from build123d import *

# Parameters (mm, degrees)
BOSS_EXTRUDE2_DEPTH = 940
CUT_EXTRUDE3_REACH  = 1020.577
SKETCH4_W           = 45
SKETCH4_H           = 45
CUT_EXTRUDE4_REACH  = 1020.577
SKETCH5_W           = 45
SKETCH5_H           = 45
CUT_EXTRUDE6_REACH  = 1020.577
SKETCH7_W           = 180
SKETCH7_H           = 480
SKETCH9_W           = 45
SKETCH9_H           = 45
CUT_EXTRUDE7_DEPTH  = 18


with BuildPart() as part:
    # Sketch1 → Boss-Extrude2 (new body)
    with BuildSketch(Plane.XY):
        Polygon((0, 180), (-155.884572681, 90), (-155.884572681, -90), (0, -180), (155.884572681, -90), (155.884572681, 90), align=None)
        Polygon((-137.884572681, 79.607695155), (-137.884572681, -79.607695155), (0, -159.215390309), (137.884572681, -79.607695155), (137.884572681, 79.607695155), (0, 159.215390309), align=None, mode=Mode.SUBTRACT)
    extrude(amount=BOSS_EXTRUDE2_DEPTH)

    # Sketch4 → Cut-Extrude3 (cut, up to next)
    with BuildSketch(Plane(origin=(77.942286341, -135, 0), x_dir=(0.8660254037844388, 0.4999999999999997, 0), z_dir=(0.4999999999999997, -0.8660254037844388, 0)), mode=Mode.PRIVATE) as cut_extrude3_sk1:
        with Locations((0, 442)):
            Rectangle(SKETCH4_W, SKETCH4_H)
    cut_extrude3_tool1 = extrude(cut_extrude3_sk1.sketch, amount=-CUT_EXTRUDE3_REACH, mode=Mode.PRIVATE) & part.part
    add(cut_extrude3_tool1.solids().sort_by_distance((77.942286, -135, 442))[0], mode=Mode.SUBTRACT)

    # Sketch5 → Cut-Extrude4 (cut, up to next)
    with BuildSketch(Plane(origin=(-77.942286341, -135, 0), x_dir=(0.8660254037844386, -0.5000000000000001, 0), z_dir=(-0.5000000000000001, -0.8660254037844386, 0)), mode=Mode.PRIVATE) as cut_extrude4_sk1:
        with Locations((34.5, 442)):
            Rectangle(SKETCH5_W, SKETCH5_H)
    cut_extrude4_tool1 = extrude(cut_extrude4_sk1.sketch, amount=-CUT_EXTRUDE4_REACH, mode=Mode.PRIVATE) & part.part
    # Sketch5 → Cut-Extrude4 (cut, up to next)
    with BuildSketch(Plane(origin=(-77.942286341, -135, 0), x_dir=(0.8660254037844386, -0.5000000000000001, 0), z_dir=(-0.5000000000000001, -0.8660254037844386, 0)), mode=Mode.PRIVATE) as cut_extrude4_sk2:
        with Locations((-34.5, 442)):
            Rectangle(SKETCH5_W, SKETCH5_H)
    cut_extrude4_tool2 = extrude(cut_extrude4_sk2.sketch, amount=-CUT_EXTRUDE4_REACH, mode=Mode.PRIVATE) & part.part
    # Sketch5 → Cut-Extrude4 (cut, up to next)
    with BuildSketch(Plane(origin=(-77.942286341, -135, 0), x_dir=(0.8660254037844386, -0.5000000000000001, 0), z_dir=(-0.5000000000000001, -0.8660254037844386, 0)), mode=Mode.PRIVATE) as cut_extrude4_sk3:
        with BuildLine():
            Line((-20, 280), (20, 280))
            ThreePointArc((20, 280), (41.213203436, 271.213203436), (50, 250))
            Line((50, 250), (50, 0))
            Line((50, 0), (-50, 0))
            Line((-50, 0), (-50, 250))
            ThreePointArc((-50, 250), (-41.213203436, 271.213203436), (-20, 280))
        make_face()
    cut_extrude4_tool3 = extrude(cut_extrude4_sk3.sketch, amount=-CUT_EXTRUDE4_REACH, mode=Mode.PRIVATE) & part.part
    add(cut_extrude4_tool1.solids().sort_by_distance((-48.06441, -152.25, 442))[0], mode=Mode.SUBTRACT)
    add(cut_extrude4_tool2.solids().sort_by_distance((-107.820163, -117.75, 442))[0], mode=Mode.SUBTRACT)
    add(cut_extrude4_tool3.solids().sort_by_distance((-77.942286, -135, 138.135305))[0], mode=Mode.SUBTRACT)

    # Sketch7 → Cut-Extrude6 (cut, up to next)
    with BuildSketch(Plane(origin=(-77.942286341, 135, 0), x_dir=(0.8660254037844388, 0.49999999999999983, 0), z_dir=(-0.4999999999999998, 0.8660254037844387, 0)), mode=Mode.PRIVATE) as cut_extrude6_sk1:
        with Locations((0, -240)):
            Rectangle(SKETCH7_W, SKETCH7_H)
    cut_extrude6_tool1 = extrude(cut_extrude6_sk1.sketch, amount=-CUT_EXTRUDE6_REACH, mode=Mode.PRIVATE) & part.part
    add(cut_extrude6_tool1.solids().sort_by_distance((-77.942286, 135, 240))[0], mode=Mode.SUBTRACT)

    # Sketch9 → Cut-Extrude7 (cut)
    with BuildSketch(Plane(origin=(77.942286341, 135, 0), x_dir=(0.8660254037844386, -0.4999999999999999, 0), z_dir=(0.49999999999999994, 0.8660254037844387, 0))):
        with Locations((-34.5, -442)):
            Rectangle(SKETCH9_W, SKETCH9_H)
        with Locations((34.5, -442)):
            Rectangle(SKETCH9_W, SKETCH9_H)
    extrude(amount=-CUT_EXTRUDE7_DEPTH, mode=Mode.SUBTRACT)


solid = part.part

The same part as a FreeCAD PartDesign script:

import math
import FreeCAD as App
import Part
import Sketcher

V = App.Vector
Q = App.Units.Quantity

doc = App.newDocument("Part")
params = doc.addObject("Spreadsheet::Sheet", "Params")
for row, (alias, value) in enumerate([
    ("sketch1_height", "180 mm"),
    ("sketch1_length", "180 mm"),
    ("pad1_length", "940 mm"),
    ("sketch2_width", "45 mm"),
    ("sketch3_width", "45 mm"),
    ("sketch4_width", "45 mm"),
    ("sketch5_radius", "30 mm"),
    ("sketch5_width", "40 mm"),
    ("sketch5_height", "250 mm"),
    ("sketch6_width", "180 mm"),
    ("sketch6_height", "480 mm"),
    ("pocket5_length", "36 mm"),
    ("sketch7_width", "45 mm"),
    ("pocket6_length", "18 mm"),
], start=1):
    params.set(f"A{row}", alias)
    params.set(f"B{row}", "=" + value)
    params.setAlias(f"B{row}", alias)

body = doc.addObject("PartDesign::Body", "Body")

# Sketch on XY plane
sketch1 = doc.addObject("Sketcher::SketchObject", "Sketch")
body.addObject(sketch1)
sketch1.AttachmentSupport = (doc.XY_Plane, [""])
sketch1.MapMode = "FlatFace"
sketch1.addGeometry(Part.LineSegment(V(0, 180, 0), V(-155.884573, 90, 0)), False)
sketch1.addGeometry(Part.LineSegment(V(-155.884573, 90, 0), V(-155.884573, -90, 0)), False)
sketch1.addGeometry(Part.LineSegment(V(-155.884573, -90, 0), V(0, -180, 0)), False)
sketch1.addGeometry(Part.LineSegment(V(0, -180, 0), V(155.884573, -90, 0)), False)
sketch1.addGeometry(Part.LineSegment(V(155.884573, -90, 0), V(155.884573, 90, 0)), False)
sketch1.addGeometry(Part.LineSegment(V(155.884573, 90, 0), V(0, 180, 0)), False)
sketch1.addGeometry(Part.LineSegment(V(-137.884573, -79.607695, 0), V(-137.884573, 79.607695, 0)), False)
sketch1.addGeometry(Part.LineSegment(V(-137.884573, 79.607695, 0), V(0, 159.21539, 0)), False)
sketch1.addGeometry(Part.LineSegment(V(0, 159.21539, 0), V(137.884573, 79.607695, 0)), False)
sketch1.addGeometry(Part.LineSegment(V(137.884573, 79.607695, 0), V(137.884573, -79.607695, 0)), False)
sketch1.addGeometry(Part.LineSegment(V(137.884573, -79.607695, 0), V(0, -159.21539, 0)), False)
sketch1.addGeometry(Part.LineSegment(V(0, -159.21539, 0), V(-137.884573, -79.607695, 0)), False)
sketch1.addConstraint(Sketcher.Constraint("Coincident", 0, 2, 1, 1))
sketch1.addConstraint(Sketcher.Constraint("Coincident", 1, 2, 2, 1))
sketch1.addConstraint(Sketcher.Constraint("Coincident", 2, 2, 3, 1))
sketch1.addConstraint(Sketcher.Constraint("Coincident", 3, 2, 4, 1))
sketch1.addConstraint(Sketcher.Constraint("Coincident", 4, 2, 5, 1))
sketch1.addConstraint(Sketcher.Constraint("Coincident", 5, 2, 0, 1))
sketch1.addConstraint(Sketcher.Constraint("Coincident", 6, 2, 7, 1))
sketch1.addConstraint(Sketcher.Constraint("Coincident", 7, 2, 8, 1))
sketch1.addConstraint(Sketcher.Constraint("Coincident", 8, 2, 9, 1))
sketch1.addConstraint(Sketcher.Constraint("Coincident", 9, 2, 10, 1))
sketch1.addConstraint(Sketcher.Constraint("Coincident", 10, 2, 11, 1))
sketch1.addConstraint(Sketcher.Constraint("Coincident", 11, 2, 6, 1))
sketch1.addConstraint(Sketcher.Constraint("Vertical", 1))
sketch1.addConstraint(Sketcher.Constraint("Vertical", 4))
sketch1.addConstraint(Sketcher.Constraint("Vertical", 6))
sketch1.addConstraint(Sketcher.Constraint("Vertical", 9))
sketch1.addConstraint(Sketcher.Constraint("Symmetric", 0, 2, 3, 2, -1, 1))
sketch1.addConstraint(Sketcher.Constraint("Symmetric", 2, 2, 5, 2, -1, 1))
sketch1.addConstraint(Sketcher.Constraint("Symmetric", 6, 2, 9, 2, -1, 1))
sketch1.addConstraint(Sketcher.Constraint("Symmetric", 7, 2, 10, 2, -1, 1))
sketch1.addConstraint(Sketcher.Constraint("PointOnObject", 2, 2, -2))
sketch1.addConstraint(Sketcher.Constraint("PointOnObject", 7, 2, -2))
sketch1.addConstraint(Sketcher.Constraint("Parallel", 2, 5))
sketch1.addConstraint(Sketcher.Constraint("Parallel", 3, 7))
sketch1.addConstraint(Sketcher.Constraint("Parallel", 5, 8))
sketch1.addConstraint(Sketcher.Constraint("Parallel", 8, 11))
sketch1.addConstraint(Sketcher.Constraint("Horizontal", 1, 2, 3, 2))
sketch1.addConstraint(Sketcher.Constraint("DistanceY", 1, 2, 1, 1, 180.0))
sketch1.addConstraint(Sketcher.Constraint("Angle", 0, Q("-150 deg")))
sketch1.addConstraint(Sketcher.Constraint("Distance", 0, 180.0))
sketch1.addConstraint(Sketcher.Constraint("DistanceX", 0, 2, 6, 2, 18.0))
sketch1.addConstraint(Sketcher.Constraint("DistanceY", 6, 1, 6, 2, 159.21539))
sketch1.setExpression("Constraints[27]", "Params.sketch1_height")
sketch1.setExpression("Constraints[29]", "Params.sketch1_length")
pad1 = doc.addObject("PartDesign::Pad", "Pad")
body.addObject(pad1)
pad1.Profile = sketch1
pad1.setExpression("Length", "Params.pad1_length")

# Sketch on an angled plane
sketch2 = doc.addObject("Sketcher::SketchObject", "Sketch001")
body.addObject(sketch2)
sketch2.Placement = App.Placement(V(77.942286, -135, 0), App.Rotation(V(0.866025404, 0.5, 0), V(0, 0, 1), V(0.5, -0.866025404, 0), "ZXY"))
sketch2.addGeometry(Part.LineSegment(V(-22.5, 464.5, 0), V(-22.5, 419.5, 0)), False)
sketch2.addGeometry(Part.LineSegment(V(-22.5, 419.5, 0), V(22.5, 419.5, 0)), False)
sketch2.addGeometry(Part.LineSegment(V(22.5, 419.5, 0), V(22.5, 464.5, 0)), False)
sketch2.addGeometry(Part.LineSegment(V(22.5, 464.5, 0), V(-22.5, 464.5, 0)), False)
sketch2.addConstraint(Sketcher.Constraint("Coincident", 0, 2, 1, 1))
sketch2.addConstraint(Sketcher.Constraint("Coincident", 1, 2, 2, 1))
sketch2.addConstraint(Sketcher.Constraint("Coincident", 2, 2, 3, 1))
sketch2.addConstraint(Sketcher.Constraint("Coincident", 3, 2, 0, 1))
sketch2.addConstraint(Sketcher.Constraint("Vertical", 0))
sketch2.addConstraint(Sketcher.Constraint("Horizontal", 1))
sketch2.addConstraint(Sketcher.Constraint("Vertical", 2))
sketch2.addConstraint(Sketcher.Constraint("Horizontal", 3))
sketch2.addConstraint(Sketcher.Constraint("Equal", 3, 0))
sketch2.addConstraint(Sketcher.Constraint("DistanceX", 1, 1, 1, 2, 45.0))
sketch2.addConstraint(Sketcher.Constraint("DistanceX", 0, 2, -1, 1, 22.5))
sketch2.addConstraint(Sketcher.Constraint("DistanceY", -1, 1, 0, 2, 419.5))
sketch2.setExpression("Constraints[9]", "Params.sketch2_width")
pocket1 = doc.addObject("PartDesign::Pocket", "Pocket")
body.addObject(pocket1)
pocket1.Profile = sketch2
pocket1.Type = "UpToFirst"

# Sketch on an angled plane
sketch3 = doc.addObject("Sketcher::SketchObject", "Sketch002")
body.addObject(sketch3)
sketch3.Placement = App.Placement(V(-77.942286, -135, 0), App.Rotation(V(0.866025404, -0.5, 0), V(0, 0, 1), V(-0.5, -0.866025404, 0), "ZXY"))
sketch3.addGeometry(Part.LineSegment(V(12, 464.5, 0), V(12, 419.5, 0)), False)
sketch3.addGeometry(Part.LineSegment(V(12, 419.5, 0), V(57, 419.5, 0)), False)
sketch3.addGeometry(Part.LineSegment(V(57, 419.5, 0), V(57, 464.5, 0)), False)
sketch3.addGeometry(Part.LineSegment(V(57, 464.5, 0), V(12, 464.5, 0)), False)
sketch3.addConstraint(Sketcher.Constraint("Coincident", 0, 2, 1, 1))
sketch3.addConstraint(Sketcher.Constraint("Coincident", 1, 2, 2, 1))
sketch3.addConstraint(Sketcher.Constraint("Coincident", 2, 2, 3, 1))
sketch3.addConstraint(Sketcher.Constraint("Coincident", 3, 2, 0, 1))
sketch3.addConstraint(Sketcher.Constraint("Vertical", 0))
sketch3.addConstraint(Sketcher.Constraint("Horizontal", 1))
sketch3.addConstraint(Sketcher.Constraint("Vertical", 2))
sketch3.addConstraint(Sketcher.Constraint("Horizontal", 3))
sketch3.addConstraint(Sketcher.Constraint("Equal", 3, 0))
sketch3.addConstraint(Sketcher.Constraint("DistanceX", 1, 1, 1, 2, 45.0))
sketch3.addConstraint(Sketcher.Constraint("DistanceX", -1, 1, 0, 2, 12.0))
sketch3.addConstraint(Sketcher.Constraint("DistanceY", -1, 1, 0, 2, 419.5))
sketch3.setExpression("Constraints[9]", "Params.sketch3_width")
pocket2 = doc.addObject("PartDesign::Pocket", "Pocket001")
body.addObject(pocket2)
pocket2.Profile = sketch3
pocket2.Type = "UpToFirst"

# Sketch on an angled plane
sketch4 = doc.addObject("Sketcher::SketchObject", "Sketch003")
body.addObject(sketch4)
sketch4.Placement = App.Placement(V(-77.942286, -135, 0), App.Rotation(V(0.866025404, -0.5, 0), V(0, 0, 1), V(-0.5, -0.866025404, 0), "ZXY"))
sketch4.addGeometry(Part.LineSegment(V(-57, 464.5, 0), V(-57, 419.5, 0)), False)
sketch4.addGeometry(Part.LineSegment(V(-57, 419.5, 0), V(-12, 419.5, 0)), False)
sketch4.addGeometry(Part.LineSegment(V(-12, 419.5, 0), V(-12, 464.5, 0)), False)
sketch4.addGeometry(Part.LineSegment(V(-12, 464.5, 0), V(-57, 464.5, 0)), False)
sketch4.addConstraint(Sketcher.Constraint("Coincident", 0, 2, 1, 1))
sketch4.addConstraint(Sketcher.Constraint("Coincident", 1, 2, 2, 1))
sketch4.addConstraint(Sketcher.Constraint("Coincident", 2, 2, 3, 1))
sketch4.addConstraint(Sketcher.Constraint("Coincident", 3, 2, 0, 1))
sketch4.addConstraint(Sketcher.Constraint("Vertical", 0))
sketch4.addConstraint(Sketcher.Constraint("Horizontal", 1))
sketch4.addConstraint(Sketcher.Constraint("Vertical", 2))
sketch4.addConstraint(Sketcher.Constraint("Horizontal", 3))
sketch4.addConstraint(Sketcher.Constraint("Equal", 3, 0))
sketch4.addConstraint(Sketcher.Constraint("DistanceX", 1, 1, 1, 2, 45.0))
sketch4.addConstraint(Sketcher.Constraint("DistanceX", 0, 2, -1, 1, 57.0))
sketch4.addConstraint(Sketcher.Constraint("DistanceY", -1, 1, 0, 2, 419.5))
sketch4.setExpression("Constraints[9]", "Params.sketch4_width")
pocket3 = doc.addObject("PartDesign::Pocket", "Pocket002")
body.addObject(pocket3)
pocket3.Profile = sketch4
pocket3.Type = "UpToFirst"

# Sketch on an angled plane
sketch5 = doc.addObject("Sketcher::SketchObject", "Sketch004")
body.addObject(sketch5)
sketch5.Placement = App.Placement(V(-77.942286, -135, 0), App.Rotation(V(0.866025404, -0.5, 0), V(0, 0, 1), V(-0.5, -0.866025404, 0), "ZXY"))
sketch5.addGeometry(Part.LineSegment(V(20, 280, 0), V(-20, 280, 0)), False)
sketch5.addGeometry(Part.ArcOfCircle(Part.Circle(V(-20, 250, 0), V(0, 0, 1), 30), math.radians(90), math.radians(180)), False)
sketch5.addGeometry(Part.LineSegment(V(-50, 250, 0), V(-50, 0, 0)), False)
sketch5.addGeometry(Part.LineSegment(V(-50, 0, 0), V(50, 0, 0)), False)
sketch5.addGeometry(Part.LineSegment(V(50, 0, 0), V(50, 250, 0)), False)
sketch5.addGeometry(Part.ArcOfCircle(Part.Circle(V(20, 250, 0), V(0, 0, 1), 30), math.radians(0), math.radians(90)), False)
sketch5.addConstraint(Sketcher.Constraint("Tangent", 0, 2, 1, 1))
sketch5.addConstraint(Sketcher.Constraint("Tangent", 1, 2, 2, 1))
sketch5.addConstraint(Sketcher.Constraint("Coincident", 2, 2, 3, 1))
sketch5.addConstraint(Sketcher.Constraint("Coincident", 3, 2, 4, 1))
sketch5.addConstraint(Sketcher.Constraint("Tangent", 4, 2, 5, 1))
sketch5.addConstraint(Sketcher.Constraint("Tangent", 5, 2, 0, 1))
sketch5.addConstraint(Sketcher.Constraint("Horizontal", 0))
sketch5.addConstraint(Sketcher.Constraint("Vertical", 2))
sketch5.addConstraint(Sketcher.Constraint("Horizontal", 3))
sketch5.addConstraint(Sketcher.Constraint("Vertical", 4))
sketch5.addConstraint(Sketcher.Constraint("Equal", 1, 5))
sketch5.addConstraint(Sketcher.Constraint("Symmetric", 2, 2, 3, 2, -1, 1))
sketch5.addConstraint(Sketcher.Constraint("Radius", 1, 30.0))
sketch5.addConstraint(Sketcher.Constraint("DistanceX", 0, 2, 0, 1, 40.0))
sketch5.addConstraint(Sketcher.Constraint("DistanceY", 2, 2, 2, 1, 250.0))
sketch5.setExpression("Constraints[12]", "Params.sketch5_radius")
sketch5.setExpression("Constraints[13]", "Params.sketch5_width")
sketch5.setExpression("Constraints[14]", "Params.sketch5_height")
pocket4 = doc.addObject("PartDesign::Pocket", "Pocket003")
body.addObject(pocket4)
pocket4.Profile = sketch5
pocket4.Type = "UpToFirst"

# Sketch on an angled plane
sketch6 = doc.addObject("Sketcher::SketchObject", "Sketch005")
body.addObject(sketch6)
sketch6.Placement = App.Placement(V(-77.942286, 135, 0), App.Rotation(V(0.866025404, 0.5, 0), V(0, 0, -1), V(-0.5, 0.866025404, 0), "ZXY"))
sketch6.addGeometry(Part.LineSegment(V(-90, 0, 0), V(-90, -480, 0)), False)
sketch6.addGeometry(Part.LineSegment(V(-90, -480, 0), V(90, -480, 0)), False)
sketch6.addGeometry(Part.LineSegment(V(90, -480, 0), V(90, 0, 0)), False)
sketch6.addGeometry(Part.LineSegment(V(90, 0, 0), V(-90, 0, 0)), False)
sketch6.addConstraint(Sketcher.Constraint("Coincident", 0, 2, 1, 1))
sketch6.addConstraint(Sketcher.Constraint("Coincident", 1, 2, 2, 1))
sketch6.addConstraint(Sketcher.Constraint("Coincident", 2, 2, 3, 1))
sketch6.addConstraint(Sketcher.Constraint("Coincident", 3, 2, 0, 1))
sketch6.addConstraint(Sketcher.Constraint("Vertical", 0))
sketch6.addConstraint(Sketcher.Constraint("Horizontal", 1))
sketch6.addConstraint(Sketcher.Constraint("Vertical", 2))
sketch6.addConstraint(Sketcher.Constraint("Horizontal", 3))
sketch6.addConstraint(Sketcher.Constraint("Symmetric", 2, 2, 3, 2, -1, 1))
sketch6.addConstraint(Sketcher.Constraint("DistanceX", 1, 1, 1, 2, 180.0))
sketch6.addConstraint(Sketcher.Constraint("DistanceY", 0, 2, 0, 1, 480.0))
sketch6.setExpression("Constraints[9]", "Params.sketch6_width")
sketch6.setExpression("Constraints[10]", "Params.sketch6_height")
pocket5 = doc.addObject("PartDesign::Pocket", "Pocket004")
body.addObject(pocket5)
pocket5.Profile = sketch6
pocket5.setExpression("Length", "Params.pocket5_length")

# Sketch on an angled plane
sketch7 = doc.addObject("Sketcher::SketchObject", "Sketch006")
body.addObject(sketch7)
sketch7.Placement = App.Placement(V(77.942286, 135, 0), App.Rotation(V(0.866025404, -0.5, 0), V(0, 0, -1), V(0.5, 0.866025404, 0), "ZXY"))
sketch7.addGeometry(Part.LineSegment(V(-57, -419.5, 0), V(-57, -464.5, 0)), False)
sketch7.addGeometry(Part.LineSegment(V(-57, -464.5, 0), V(-12, -464.5, 0)), False)
sketch7.addGeometry(Part.LineSegment(V(-12, -464.5, 0), V(-12, -419.5, 0)), False)
sketch7.addGeometry(Part.LineSegment(V(-12, -419.5, 0), V(-57, -419.5, 0)), False)
sketch7.addGeometry(Part.LineSegment(V(12, -419.5, 0), V(12, -464.5, 0)), False)
sketch7.addGeometry(Part.LineSegment(V(12, -464.5, 0), V(57, -464.5, 0)), False)
sketch7.addGeometry(Part.LineSegment(V(57, -464.5, 0), V(57, -419.5, 0)), False)
sketch7.addGeometry(Part.LineSegment(V(57, -419.5, 0), V(12, -419.5, 0)), False)
sketch7.addConstraint(Sketcher.Constraint("Coincident", 0, 2, 1, 1))
sketch7.addConstraint(Sketcher.Constraint("Coincident", 1, 2, 2, 1))
sketch7.addConstraint(Sketcher.Constraint("Coincident", 2, 2, 3, 1))
sketch7.addConstraint(Sketcher.Constraint("Coincident", 3, 2, 0, 1))
sketch7.addConstraint(Sketcher.Constraint("Coincident", 4, 2, 5, 1))
sketch7.addConstraint(Sketcher.Constraint("Coincident", 5, 2, 6, 1))
sketch7.addConstraint(Sketcher.Constraint("Coincident", 6, 2, 7, 1))
sketch7.addConstraint(Sketcher.Constraint("Coincident", 7, 2, 4, 1))
sketch7.addConstraint(Sketcher.Constraint("Vertical", 0))
sketch7.addConstraint(Sketcher.Constraint("Horizontal", 1))
sketch7.addConstraint(Sketcher.Constraint("Vertical", 2))
sketch7.addConstraint(Sketcher.Constraint("Horizontal", 3))
sketch7.addConstraint(Sketcher.Constraint("Vertical", 4))
sketch7.addConstraint(Sketcher.Constraint("Horizontal", 5))
sketch7.addConstraint(Sketcher.Constraint("Vertical", 6))
sketch7.addConstraint(Sketcher.Constraint("Horizontal", 7))
sketch7.addConstraint(Sketcher.Constraint("Symmetric", 1, 2, 4, 2, -2))
sketch7.addConstraint(Sketcher.Constraint("Symmetric", 3, 2, 6, 2, -2))
sketch7.addConstraint(Sketcher.Constraint("Equal", 7, 0))
sketch7.addConstraint(Sketcher.Constraint("DistanceX", 1, 1, 1, 2, 45.0))
sketch7.addConstraint(Sketcher.Constraint("DistanceX", 0, 2, -1, 1, 57.0))
sketch7.addConstraint(Sketcher.Constraint("DistanceY", 0, 2, -1, 1, 464.5))
sketch7.setExpression("Constraints[19]", "Params.sketch7_width")
pocket6 = doc.addObject("PartDesign::Pocket", "Pocket005")
body.addObject(pocket6)
pocket6.Profile = sketch7
pocket6.setExpression("Length", "Params.pocket6_length")

doc.recompute()
